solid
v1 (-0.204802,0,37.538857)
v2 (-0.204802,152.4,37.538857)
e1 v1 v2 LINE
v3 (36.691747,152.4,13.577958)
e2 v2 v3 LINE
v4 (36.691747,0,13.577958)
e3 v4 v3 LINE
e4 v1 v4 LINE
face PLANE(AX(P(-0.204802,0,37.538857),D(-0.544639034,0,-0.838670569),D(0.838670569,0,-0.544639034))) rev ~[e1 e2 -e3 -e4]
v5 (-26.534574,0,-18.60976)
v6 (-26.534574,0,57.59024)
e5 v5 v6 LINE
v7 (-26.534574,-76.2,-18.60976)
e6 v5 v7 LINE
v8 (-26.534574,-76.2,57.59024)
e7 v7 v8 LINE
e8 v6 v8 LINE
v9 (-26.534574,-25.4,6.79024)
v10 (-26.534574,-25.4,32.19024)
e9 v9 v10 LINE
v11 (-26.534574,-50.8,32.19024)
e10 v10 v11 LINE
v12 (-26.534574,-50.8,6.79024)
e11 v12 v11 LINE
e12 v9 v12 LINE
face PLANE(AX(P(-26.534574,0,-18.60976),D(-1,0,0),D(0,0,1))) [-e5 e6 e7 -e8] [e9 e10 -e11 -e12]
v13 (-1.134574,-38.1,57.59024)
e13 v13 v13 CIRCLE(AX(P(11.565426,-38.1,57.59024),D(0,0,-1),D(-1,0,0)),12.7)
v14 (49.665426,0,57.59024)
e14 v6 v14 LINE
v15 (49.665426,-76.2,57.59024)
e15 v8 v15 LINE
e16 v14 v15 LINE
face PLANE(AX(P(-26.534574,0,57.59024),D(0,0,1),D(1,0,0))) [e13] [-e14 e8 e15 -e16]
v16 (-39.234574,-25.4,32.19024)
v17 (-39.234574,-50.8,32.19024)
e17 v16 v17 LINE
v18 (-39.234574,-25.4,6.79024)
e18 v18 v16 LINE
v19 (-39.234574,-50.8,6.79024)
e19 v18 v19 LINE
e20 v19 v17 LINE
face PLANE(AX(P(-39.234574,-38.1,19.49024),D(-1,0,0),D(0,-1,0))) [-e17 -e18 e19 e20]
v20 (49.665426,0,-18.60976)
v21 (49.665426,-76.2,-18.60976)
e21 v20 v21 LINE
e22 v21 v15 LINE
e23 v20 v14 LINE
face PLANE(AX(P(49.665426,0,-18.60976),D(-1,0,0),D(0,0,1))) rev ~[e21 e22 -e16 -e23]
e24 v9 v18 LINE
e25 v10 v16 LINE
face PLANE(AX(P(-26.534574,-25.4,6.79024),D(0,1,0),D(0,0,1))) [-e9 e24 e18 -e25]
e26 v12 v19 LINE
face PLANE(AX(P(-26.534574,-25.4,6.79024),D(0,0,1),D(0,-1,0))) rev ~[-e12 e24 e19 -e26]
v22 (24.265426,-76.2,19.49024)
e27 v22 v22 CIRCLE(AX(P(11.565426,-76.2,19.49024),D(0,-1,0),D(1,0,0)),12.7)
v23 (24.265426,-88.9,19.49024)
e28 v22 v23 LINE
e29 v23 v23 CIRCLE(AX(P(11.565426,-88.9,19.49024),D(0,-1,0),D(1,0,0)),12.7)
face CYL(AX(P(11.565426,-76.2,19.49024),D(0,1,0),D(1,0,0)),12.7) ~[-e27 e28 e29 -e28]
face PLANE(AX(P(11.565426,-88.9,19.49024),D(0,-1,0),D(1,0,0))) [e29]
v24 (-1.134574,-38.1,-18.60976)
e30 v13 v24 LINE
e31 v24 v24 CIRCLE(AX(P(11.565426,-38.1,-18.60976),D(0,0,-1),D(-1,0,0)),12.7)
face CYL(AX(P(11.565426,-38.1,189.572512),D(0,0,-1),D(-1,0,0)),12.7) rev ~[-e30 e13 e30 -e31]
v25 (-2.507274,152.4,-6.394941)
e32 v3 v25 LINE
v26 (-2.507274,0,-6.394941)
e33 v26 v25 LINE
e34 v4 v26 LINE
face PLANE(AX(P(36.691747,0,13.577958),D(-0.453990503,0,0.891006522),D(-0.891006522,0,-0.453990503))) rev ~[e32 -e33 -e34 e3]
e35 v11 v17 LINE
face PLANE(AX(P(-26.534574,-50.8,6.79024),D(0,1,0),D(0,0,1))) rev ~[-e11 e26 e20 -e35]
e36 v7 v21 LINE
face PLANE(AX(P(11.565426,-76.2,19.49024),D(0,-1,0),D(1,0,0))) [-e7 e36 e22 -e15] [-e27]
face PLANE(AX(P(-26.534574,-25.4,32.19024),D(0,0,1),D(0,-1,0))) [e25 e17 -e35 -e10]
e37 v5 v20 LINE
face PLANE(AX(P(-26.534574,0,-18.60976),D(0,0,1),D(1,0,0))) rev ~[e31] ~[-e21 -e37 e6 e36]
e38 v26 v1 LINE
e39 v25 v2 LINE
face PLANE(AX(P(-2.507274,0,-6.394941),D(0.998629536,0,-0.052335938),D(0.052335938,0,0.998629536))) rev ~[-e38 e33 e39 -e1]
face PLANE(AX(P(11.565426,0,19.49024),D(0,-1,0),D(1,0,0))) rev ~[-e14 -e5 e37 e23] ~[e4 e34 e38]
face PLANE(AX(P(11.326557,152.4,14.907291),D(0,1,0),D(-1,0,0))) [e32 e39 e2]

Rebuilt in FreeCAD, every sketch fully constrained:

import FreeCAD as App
import Part
import Sketcher

V = App.Vector
Q = App.Units.Quantity


def add_polygon(sketch, points):
    """Adds a closed chain of lines whose ends are joined by coincident constraints."""
    first, n = sketch.GeometryCount, len(points)
    for a, b in zip(points, points[1:] + points[:1]):
        sketch.addGeometry(Part.LineSegment(App.Vector(*a, 0), App.Vector(*b, 0)), False)
    for i in range(n):
        sketch.addConstraint(Sketcher.Constraint("Coincident", first + i, 2, first + (i + 1) % n, 1))

doc = App.newDocument("Part")
body = doc.addObject("PartDesign::Body", "Body")

sketch1 = body.newObject("Sketcher::SketchObject", "Sketch")
sketch1.AttachmentSupport = (doc.getObject("XZ_Plane"), [""])
sketch1.MapMode = "FlatFace"
add_polygon(sketch1, [(-27, 58), (-27, -19), (50, -19), (50, 58)])
sketch1.addConstraint([
    Sketcher.Constraint("Vertical", 0),
    Sketcher.Constraint("Horizontal", 1),
    Sketcher.Constraint("Vertical", 2),
    Sketcher.Constraint("Horizontal", 3),
    Sketcher.Constraint("Equal", 3, 0),
    Sketcher.Constraint("DistanceX", 1, 1, 1, 2, Q("3 in")),
    Sketcher.Constraint("DistanceY", 0, 2, -1, 1, Q("18.60976 mm")),
    Sketcher.Constraint("DistanceX", 0, 2, -1, 1, Q("26.534574 mm")),
])
pad1 = body.newObject("PartDesign::Pad", "Pad")
pad1.Profile = sketch1
pad1.Length = Q("3 in")

sketch2 = body.newObject("Sketcher::SketchObject", "Sketch001")
sketch2.AttachmentSupport = (doc.getObject("XY_Plane"), [""])
sketch2.MapMode = "FlatFace"
sketch2.AttachmentOffset = App.Placement(V(0, 0, 57.59024), App.Rotation())
sketch2.addGeometry(Part.Circle(V(12, -38, 0), V(0, 0, 1), 13), False)
sketch2.addConstraint([
    Sketcher.Constraint("Diameter", 0, Q("1 in")),
    Sketcher.Constraint("DistanceY", 0, 3, -1, 1, Q("1.5 in")),
    Sketcher.Constraint("DistanceX", -1, 1, 0, 3, Q("11.565426 mm")),
])
doc.recompute()
hole = body.newObject("PartDesign::Hole", "Hole")
hole.Profile = sketch2
hole.ThreadType = "None"
hole.Diameter = Q("1 in")
hole.DepthType = "ThroughAll"

sketch3 = body.newObject("Sketcher::SketchObject", "Sketch002")
sketch3.AttachmentSupport = (doc.getObject("YZ_Plane"), [""])
sketch3.MapMode = "FlatFace"
sketch3.AttachmentOffset = App.Placement(V(0, 0, -26.534574), App.Rotation())
add_polygon(sketch3, [(-25, 32), (-25, 7), (-51, 7), (-51, 32)])
sketch3.addConstraint([
    Sketcher.Constraint("Vertical", 0),
    Sketcher.Constraint("Horizontal", 1),
    Sketcher.Constraint("Vertical", 2),
    Sketcher.Constraint("Horizontal", 3),
    Sketcher.Constraint("Equal", 3, 0),
    Sketcher.Constraint("DistanceX", 1, 2, 1, 1, Q("1 in")),
    Sketcher.Constraint("DistanceX", 0, 2, -1, 1, Q("1 in")),
    Sketcher.Constraint("DistanceY", -1, 1, 0, 2, Q("6.79024 mm")),
])
pad2 = body.newObject("PartDesign::Pad", "Pad001")
pad2.Profile = sketch3
pad2.Length = Q("0.5 in")
pad2.Reversed = True

sketch4 = body.newObject("Sketcher::SketchObject", "Sketch003")
sketch4.AttachmentSupport = (doc.getObject("XZ_Plane"), [""])
sketch4.MapMode = "FlatFace"
sketch4.AttachmentOffset = App.Placement(V(0, 0, 3 * 25.4), App.Rotation())
sketch4.addGeometry(Part.Circle(V(12, 19, 0), V(0, 0, 1), 13), False)
sketch4.addConstraint([
    Sketcher.Constraint("Diameter", 0, Q("1 in")),
    Sketcher.Constraint("DistanceY", -1, 1, 0, 3, Q("19.49024 mm")),
    Sketcher.Constraint("DistanceX", -1, 1, 0, 3, Q("11.565426 mm")),
])
pad3 = body.newObject("PartDesign::Pad", "Pad002")
pad3.Profile = sketch4
pad3.Length = Q("0.5 in")

sketch5 = body.newObject("Sketcher::SketchObject", "Sketch004")
sketch5.AttachmentSupport = (doc.getObject("XZ_Plane"), [""])
sketch5.MapMode = "FlatFace"
add_polygon(sketch5, [(0, 38), (37, 14), (-3, -6)])
sketch5.addConstraint([
    Sketcher.Constraint("Equal", 0, 1),
    Sketcher.Constraint("Equal", 1, 2),
    Sketcher.Constraint("Angle", 0, Q("-33 deg")),
    Sketcher.Constraint("DistanceY", 1, 2, 0, 2, Q("19.972899 mm")),
    Sketcher.Constraint("DistanceY", -1, 1, 0, 2, Q("13.577958 mm")),
    Sketcher.Constraint("DistanceX", -1, 1, 0, 2, Q("36.691747 mm")),
])
pad4 = body.newObject("PartDesign::Pad", "Pad003")
pad4.Profile = sketch5
pad4.Length = Q("6 in")
pad4.Reversed = True

doc.recompute()
